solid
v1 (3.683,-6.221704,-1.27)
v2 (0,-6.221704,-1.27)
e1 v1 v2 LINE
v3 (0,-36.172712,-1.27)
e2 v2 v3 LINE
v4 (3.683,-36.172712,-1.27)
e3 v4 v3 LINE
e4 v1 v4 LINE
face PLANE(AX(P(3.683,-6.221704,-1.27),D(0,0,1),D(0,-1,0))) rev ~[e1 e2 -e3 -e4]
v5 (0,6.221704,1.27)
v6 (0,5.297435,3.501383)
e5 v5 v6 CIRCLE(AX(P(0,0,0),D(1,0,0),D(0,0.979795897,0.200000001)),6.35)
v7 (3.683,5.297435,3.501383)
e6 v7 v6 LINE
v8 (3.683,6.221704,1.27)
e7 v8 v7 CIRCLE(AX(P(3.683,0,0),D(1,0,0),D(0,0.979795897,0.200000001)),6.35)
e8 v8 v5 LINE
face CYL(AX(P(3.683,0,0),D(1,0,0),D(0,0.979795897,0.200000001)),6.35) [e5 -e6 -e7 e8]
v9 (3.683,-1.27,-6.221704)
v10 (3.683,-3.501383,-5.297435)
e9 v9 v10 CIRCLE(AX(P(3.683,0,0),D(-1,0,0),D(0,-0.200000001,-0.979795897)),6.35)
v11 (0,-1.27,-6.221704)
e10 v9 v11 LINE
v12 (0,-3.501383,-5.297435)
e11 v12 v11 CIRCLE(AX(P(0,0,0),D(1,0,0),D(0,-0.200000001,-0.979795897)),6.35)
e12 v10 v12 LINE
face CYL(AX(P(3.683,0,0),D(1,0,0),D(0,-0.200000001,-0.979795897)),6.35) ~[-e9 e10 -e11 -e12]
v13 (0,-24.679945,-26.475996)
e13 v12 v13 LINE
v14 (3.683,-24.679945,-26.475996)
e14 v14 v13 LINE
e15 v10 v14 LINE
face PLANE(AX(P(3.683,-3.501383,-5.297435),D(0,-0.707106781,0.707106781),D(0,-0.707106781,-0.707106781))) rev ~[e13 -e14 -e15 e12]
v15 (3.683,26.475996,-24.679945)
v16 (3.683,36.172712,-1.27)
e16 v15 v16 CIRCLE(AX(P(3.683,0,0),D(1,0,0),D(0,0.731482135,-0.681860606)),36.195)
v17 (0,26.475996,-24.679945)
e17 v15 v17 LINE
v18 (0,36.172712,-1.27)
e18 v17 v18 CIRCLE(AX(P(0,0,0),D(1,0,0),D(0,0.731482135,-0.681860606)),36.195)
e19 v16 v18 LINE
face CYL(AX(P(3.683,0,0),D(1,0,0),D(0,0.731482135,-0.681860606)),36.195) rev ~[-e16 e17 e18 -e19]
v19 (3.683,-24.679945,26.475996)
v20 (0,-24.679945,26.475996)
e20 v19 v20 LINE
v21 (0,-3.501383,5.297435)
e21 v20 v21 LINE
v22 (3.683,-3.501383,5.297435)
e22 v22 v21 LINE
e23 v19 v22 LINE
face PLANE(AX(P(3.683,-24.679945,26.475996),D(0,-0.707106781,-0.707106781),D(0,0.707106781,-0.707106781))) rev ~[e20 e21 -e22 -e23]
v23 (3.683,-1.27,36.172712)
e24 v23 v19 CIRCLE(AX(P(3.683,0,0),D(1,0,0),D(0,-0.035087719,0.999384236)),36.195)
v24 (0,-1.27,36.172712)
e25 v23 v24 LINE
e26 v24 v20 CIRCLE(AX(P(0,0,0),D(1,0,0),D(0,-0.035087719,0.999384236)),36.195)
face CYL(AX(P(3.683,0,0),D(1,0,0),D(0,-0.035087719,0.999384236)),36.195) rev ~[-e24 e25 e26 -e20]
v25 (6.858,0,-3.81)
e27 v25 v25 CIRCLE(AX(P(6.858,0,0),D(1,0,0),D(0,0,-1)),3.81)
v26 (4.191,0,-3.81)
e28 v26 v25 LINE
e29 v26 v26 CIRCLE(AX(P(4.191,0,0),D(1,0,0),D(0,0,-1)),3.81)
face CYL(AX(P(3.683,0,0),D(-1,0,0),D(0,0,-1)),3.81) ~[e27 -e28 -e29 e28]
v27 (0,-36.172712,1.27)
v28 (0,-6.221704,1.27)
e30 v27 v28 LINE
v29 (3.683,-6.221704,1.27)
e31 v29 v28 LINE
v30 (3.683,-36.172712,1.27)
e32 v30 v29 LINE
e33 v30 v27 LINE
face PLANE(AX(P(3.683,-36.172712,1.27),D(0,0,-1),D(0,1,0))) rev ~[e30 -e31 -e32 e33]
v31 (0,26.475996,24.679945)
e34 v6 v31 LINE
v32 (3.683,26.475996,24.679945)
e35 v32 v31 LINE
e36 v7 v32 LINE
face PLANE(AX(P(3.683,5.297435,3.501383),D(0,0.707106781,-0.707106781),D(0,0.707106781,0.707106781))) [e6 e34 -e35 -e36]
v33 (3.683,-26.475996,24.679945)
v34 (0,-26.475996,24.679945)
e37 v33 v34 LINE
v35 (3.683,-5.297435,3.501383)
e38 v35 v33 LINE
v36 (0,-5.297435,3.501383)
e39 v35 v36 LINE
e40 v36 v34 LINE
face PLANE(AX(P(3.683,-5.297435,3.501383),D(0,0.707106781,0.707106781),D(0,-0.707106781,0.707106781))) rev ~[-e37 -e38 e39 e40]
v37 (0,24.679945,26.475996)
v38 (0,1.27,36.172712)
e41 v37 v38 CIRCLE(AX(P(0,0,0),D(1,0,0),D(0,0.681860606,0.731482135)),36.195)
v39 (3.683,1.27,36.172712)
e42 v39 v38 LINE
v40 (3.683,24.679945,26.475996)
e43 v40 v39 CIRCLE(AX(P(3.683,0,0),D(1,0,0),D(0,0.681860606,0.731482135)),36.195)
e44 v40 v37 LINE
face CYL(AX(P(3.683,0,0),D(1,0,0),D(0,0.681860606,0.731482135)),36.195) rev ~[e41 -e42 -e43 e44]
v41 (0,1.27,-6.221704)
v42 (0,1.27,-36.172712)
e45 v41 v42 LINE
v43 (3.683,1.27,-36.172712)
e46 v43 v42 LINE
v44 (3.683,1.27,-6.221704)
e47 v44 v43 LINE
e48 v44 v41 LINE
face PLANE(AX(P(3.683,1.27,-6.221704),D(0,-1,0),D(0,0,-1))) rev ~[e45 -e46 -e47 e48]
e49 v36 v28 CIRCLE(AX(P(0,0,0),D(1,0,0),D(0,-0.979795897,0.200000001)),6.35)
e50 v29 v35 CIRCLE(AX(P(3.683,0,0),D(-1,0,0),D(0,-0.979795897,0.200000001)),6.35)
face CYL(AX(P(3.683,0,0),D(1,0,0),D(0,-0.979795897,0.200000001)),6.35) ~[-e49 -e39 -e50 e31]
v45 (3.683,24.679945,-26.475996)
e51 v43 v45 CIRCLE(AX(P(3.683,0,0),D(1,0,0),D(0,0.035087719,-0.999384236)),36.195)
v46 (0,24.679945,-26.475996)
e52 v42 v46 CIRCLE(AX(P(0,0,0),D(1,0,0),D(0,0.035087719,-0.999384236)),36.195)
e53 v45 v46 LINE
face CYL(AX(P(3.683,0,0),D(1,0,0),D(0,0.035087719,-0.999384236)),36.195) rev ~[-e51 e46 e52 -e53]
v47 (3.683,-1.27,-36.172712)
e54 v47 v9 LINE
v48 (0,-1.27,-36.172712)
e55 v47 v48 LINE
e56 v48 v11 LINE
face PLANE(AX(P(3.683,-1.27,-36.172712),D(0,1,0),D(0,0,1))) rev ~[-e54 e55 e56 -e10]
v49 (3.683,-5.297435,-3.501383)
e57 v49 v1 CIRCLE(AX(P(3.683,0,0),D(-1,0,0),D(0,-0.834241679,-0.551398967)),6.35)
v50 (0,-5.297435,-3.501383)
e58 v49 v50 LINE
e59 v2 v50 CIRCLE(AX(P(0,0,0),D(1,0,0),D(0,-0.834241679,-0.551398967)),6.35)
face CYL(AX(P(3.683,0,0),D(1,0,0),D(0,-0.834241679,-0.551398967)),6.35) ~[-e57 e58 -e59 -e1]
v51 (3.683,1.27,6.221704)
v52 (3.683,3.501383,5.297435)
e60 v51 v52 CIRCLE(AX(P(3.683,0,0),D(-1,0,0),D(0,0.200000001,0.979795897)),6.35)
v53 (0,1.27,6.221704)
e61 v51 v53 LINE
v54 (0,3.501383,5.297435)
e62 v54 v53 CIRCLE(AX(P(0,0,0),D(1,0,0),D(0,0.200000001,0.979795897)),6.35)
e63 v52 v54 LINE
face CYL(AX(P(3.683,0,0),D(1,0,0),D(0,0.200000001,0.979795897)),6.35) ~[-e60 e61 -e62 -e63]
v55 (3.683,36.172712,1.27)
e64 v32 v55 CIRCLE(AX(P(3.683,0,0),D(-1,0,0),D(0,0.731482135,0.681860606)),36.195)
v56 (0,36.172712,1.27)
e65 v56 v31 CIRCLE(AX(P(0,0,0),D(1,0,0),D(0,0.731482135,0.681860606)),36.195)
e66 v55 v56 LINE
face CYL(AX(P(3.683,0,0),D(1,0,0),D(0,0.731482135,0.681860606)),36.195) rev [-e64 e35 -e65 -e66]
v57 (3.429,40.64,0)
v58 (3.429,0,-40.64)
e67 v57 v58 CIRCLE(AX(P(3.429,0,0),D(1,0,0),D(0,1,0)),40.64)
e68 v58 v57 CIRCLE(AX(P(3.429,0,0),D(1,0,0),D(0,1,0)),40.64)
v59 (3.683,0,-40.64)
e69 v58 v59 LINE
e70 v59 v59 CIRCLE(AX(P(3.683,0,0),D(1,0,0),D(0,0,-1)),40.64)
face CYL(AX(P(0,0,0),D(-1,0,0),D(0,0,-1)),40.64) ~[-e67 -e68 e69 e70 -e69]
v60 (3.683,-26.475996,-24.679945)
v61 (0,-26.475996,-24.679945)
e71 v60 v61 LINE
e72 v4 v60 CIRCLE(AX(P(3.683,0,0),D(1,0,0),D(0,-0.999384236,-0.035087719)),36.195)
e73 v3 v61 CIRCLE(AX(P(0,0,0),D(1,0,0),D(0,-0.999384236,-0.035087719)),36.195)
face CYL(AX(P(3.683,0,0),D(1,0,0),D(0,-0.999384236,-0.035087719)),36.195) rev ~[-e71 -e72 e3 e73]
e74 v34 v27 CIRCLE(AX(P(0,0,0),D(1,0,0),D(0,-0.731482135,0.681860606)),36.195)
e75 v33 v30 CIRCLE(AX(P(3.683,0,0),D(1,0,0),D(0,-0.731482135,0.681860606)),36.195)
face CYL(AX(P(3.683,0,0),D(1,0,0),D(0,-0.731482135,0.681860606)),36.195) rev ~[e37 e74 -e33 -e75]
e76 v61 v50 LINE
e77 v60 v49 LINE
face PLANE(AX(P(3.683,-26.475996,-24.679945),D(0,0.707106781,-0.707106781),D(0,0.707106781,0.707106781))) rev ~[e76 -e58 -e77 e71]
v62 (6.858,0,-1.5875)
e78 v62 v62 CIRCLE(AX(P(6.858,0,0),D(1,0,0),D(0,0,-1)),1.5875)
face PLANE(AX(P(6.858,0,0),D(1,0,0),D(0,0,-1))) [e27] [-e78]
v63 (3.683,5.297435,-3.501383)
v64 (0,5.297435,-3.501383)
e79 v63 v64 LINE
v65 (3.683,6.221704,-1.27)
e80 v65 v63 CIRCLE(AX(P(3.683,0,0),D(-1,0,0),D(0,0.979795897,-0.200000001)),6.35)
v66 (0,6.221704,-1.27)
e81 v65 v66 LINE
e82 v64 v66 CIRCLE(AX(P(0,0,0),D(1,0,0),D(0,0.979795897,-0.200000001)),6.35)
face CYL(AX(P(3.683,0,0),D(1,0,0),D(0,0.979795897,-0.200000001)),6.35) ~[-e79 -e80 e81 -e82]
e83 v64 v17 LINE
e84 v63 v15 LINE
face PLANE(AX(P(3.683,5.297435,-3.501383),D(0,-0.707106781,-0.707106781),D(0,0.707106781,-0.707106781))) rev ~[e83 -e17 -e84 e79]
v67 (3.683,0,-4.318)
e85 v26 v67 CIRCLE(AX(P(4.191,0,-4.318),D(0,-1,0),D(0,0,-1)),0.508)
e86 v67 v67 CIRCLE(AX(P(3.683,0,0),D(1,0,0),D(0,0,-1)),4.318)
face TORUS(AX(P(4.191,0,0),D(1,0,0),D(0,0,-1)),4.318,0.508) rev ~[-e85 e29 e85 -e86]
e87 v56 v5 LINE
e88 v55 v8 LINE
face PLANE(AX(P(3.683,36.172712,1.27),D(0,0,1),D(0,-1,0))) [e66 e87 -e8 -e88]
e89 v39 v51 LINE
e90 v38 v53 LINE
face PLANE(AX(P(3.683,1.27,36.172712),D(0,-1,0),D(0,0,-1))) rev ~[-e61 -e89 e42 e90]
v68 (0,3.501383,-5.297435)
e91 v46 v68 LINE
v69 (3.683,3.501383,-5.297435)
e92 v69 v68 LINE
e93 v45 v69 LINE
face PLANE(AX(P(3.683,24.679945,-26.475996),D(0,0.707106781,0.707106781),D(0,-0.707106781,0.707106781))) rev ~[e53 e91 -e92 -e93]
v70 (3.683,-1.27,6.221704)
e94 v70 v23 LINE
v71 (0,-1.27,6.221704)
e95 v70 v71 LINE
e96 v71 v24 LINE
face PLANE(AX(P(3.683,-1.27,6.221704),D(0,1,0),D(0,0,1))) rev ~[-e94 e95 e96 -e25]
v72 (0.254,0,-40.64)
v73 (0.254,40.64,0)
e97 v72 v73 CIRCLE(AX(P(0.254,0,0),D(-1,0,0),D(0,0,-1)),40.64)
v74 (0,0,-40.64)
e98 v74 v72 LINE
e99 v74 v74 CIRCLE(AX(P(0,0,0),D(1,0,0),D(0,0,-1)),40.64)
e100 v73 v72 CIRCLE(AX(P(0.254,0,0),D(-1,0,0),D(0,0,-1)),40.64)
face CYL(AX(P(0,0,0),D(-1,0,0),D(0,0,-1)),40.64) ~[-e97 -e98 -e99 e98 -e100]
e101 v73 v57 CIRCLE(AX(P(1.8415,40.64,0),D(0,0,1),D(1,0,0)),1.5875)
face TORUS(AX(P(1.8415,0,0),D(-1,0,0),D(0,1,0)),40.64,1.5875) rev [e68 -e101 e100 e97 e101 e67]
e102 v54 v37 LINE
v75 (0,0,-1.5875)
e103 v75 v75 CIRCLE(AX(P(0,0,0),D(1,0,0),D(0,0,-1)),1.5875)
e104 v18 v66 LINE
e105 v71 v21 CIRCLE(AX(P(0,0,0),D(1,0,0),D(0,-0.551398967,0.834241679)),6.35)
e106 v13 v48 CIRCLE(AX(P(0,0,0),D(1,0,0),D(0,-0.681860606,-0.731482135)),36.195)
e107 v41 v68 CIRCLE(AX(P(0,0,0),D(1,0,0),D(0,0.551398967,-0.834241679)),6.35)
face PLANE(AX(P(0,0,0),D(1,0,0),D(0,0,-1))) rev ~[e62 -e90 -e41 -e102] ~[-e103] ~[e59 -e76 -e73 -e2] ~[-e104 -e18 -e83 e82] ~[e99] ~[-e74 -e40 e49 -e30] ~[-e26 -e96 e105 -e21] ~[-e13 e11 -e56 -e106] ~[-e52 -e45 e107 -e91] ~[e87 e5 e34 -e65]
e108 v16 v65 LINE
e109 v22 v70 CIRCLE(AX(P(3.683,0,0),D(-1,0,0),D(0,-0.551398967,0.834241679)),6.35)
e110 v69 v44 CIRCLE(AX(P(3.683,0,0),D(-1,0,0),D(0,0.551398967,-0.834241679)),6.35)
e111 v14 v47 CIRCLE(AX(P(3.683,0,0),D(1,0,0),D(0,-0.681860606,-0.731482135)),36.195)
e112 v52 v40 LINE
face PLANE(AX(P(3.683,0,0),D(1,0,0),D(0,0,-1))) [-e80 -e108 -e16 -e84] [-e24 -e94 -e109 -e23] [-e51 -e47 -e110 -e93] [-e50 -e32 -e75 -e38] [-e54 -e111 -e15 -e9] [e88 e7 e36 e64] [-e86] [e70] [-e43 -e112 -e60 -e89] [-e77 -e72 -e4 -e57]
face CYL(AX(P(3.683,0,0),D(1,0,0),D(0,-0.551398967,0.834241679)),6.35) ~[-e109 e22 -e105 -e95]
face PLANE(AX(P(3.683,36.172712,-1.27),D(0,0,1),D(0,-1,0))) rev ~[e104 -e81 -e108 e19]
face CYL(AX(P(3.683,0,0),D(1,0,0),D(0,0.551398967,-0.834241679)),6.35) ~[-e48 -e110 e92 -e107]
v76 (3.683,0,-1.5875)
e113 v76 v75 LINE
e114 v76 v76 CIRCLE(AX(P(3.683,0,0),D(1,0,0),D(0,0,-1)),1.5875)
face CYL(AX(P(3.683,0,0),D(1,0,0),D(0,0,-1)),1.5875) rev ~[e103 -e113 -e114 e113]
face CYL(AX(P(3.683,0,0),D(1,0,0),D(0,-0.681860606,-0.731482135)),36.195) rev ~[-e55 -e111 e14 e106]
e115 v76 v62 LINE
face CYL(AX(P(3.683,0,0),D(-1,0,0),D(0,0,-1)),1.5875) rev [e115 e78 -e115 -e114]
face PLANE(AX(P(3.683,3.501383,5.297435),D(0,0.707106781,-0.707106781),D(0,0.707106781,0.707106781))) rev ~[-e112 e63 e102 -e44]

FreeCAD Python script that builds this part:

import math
import FreeCAD as App
import Part
import Sketcher
Q = App.Units.Quantity


def edges_at(feature, points):
    """Names of the edges that pass closest to the given points."""
    edges = feature.Shape.Edges
    near = lambda p: min(range(len(edges)), key=lambda i: edges[i].distToShape(Part.Vertex(*p))[0])
    return sorted({f"Edge{near(p) + 1}" for p in points})

doc = App.newDocument("Part")
body = doc.addObject("PartDesign::Body", "Body")

# Sketch on YZ plane
sketch1 = body.newObject("Sketcher::SketchObject", "Sketch")
sketch1.AttachmentSupport = (doc.getObject("YZ_Plane"), [""])
sketch1.MapMode = "FlatFace"
sketch1.addGeometry(Part.Circle(App.Vector(0, 0, 0), App.Vector(0, 0, 1), 41), False)
sketch1.addConstraint([
    Sketcher.Constraint("Coincident", 0, 3, -1, 1),
    Sketcher.Constraint("Diameter", 0, Q("3.2 in")),
])
pad1 = body.newObject("PartDesign::Pad", "Pad")
pad1.Profile = sketch1
pad1.Length = Q("0.145 in")

# Sketch on XY plane
sketch2 = body.newObject("Sketcher::SketchObject", "Sketch001")
sketch2.AttachmentSupport = (doc.getObject("XY_Plane"), [""])
sketch2.MapMode = "FlatFace"
sketch2.addGeometry(Part.Circle(App.Vector(1.8, 40.6, 0), App.Vector(0, 0, 1), 1.6), False)
sketch2.addConstraint([
    Sketcher.Constraint("Diameter", 0, Q("0.125 in")),
    Sketcher.Constraint("DistanceY", -1, 1, 0, 3, Q("1.6 in")),
    Sketcher.Constraint("DistanceX", -1, 1, 0, 3, Q("0.0725 in")),
])
groove = body.newObject("PartDesign::Groove", "Groove")
groove.Profile = sketch2
groove.ReferenceAxis = (sketch2, ["H_Axis"])
groove.Angle = 360

# Sketch on YZ plane
sketch3 = body.newObject("Sketcher::SketchObject", "Sketch002")
sketch3.AttachmentSupport = (doc.getObject("YZ_Plane"), [""])
sketch3.MapMode = "FlatFace"
sketch3.AttachmentOffset = App.Placement(App.Vector(0, 0, 0.145 * 25.4), App.Rotation())
sketch3.addGeometry([
    Part.LineSegment(App.Vector(6.2, 1.3, 0), App.Vector(36.2, 1.3, 0)),  # 0
    Part.ArcOfCircle(Part.Circle(App.Vector(0, 0, 0), App.Vector(0, 0, 1), 36.2), math.radians(2), math.radians(43)),  # 1
    Part.LineSegment(App.Vector(26.5, 24.7, 0), App.Vector(5.3, 3.5, 0)),  # 2
    Part.ArcOfCircle(Part.Circle(App.Vector(0, 0, 0), App.Vector(0, 0, 1), 6.4), math.radians(12), math.radians(33)),  # 3
    Part.LineSegment(App.Vector(36.2, -1.3, 0), App.Vector(6.2, -1.3, 0)),  # 4
    Part.ArcOfCircle(Part.Circle(App.Vector(0, 0, 0), App.Vector(0, 0, 1), 6.4), math.radians(-33), math.radians(-12)),  # 5
    Part.LineSegment(App.Vector(5.3, -3.5, 0), App.Vector(26.5, -24.7, 0)),  # 6
    Part.ArcOfCircle(Part.Circle(App.Vector(0, 0, 0), App.Vector(0, 0, 1), 36.2), math.radians(-43), math.radians(-2)),  # 7
    Part.LineSegment(App.Vector(24.7, -26.5, 0), App.Vector(3.5, -5.3, 0)),  # 8
    Part.ArcOfCircle(Part.Circle(App.Vector(0, 0, 0), App.Vector(0, 0, 1), 6.4), math.radians(-78), math.radians(-57)),  # 9
    Part.LineSegment(App.Vector(1.3, -6.2, 0), App.Vector(1.3, -36.2, 0)),  # 10
    Part.ArcOfCircle(Part.Circle(App.Vector(0, 0, 0), App.Vector(0, 0, 1), 36.2), math.radians(-88), math.radians(-47)),  # 11
    Part.LineSegment(App.Vector(-1.3, -36.2, 0), App.Vector(-1.3, -6.2, 0)),  # 12
    Part.ArcOfCircle(Part.Circle(App.Vector(0, 0, 0), App.Vector(0, 0, 1), 6.4), math.radians(-123), math.radians(-102)),  # 13
    Part.LineSegment(App.Vector(-3.5, -5.3, 0), App.Vector(-24.7, -26.5, 0)),  # 14
    Part.ArcOfCircle(Part.Circle(App.Vector(0, 0, 0), App.Vector(0, 0, 1), 36.2), math.radians(-133), math.radians(-92)),  # 15
    Part.LineSegment(App.Vector(-26.5, -24.7, 0), App.Vector(-5.3, -3.5, 0)),  # 16
    Part.ArcOfCircle(Part.Circle(App.Vector(0, 0, 0), App.Vector(0, 0, 1), 6.4), math.radians(-168), math.radians(-147)),  # 17
    Part.LineSegment(App.Vector(-6.2, -1.3, 0), App.Vector(-36.2, -1.3, 0)),  # 18
    Part.ArcOfCircle(Part.Circle(App.Vector(0, 0, 0), App.Vector(0, 0, 1), 36.2), math.radians(-178), math.radians(-137)),  # 19
    Part.LineSegment(App.Vector(-36.2, 1.3, 0), App.Vector(-6.2, 1.3, 0)),  # 20
    Part.ArcOfCircle(Part.Circle(App.Vector(0, 0, 0), App.Vector(0, 0, 1), 6.4), math.radians(147), math.radians(168)),  # 21
    Part.LineSegment(App.Vector(-5.3, 3.5, 0), App.Vector(-26.5, 24.7, 0)),  # 22
    Part.ArcOfCircle(Part.Circle(App.Vector(0, 0, 0), App.Vector(0, 0, 1), 36.2), math.radians(137), math.radians(178)),  # 23
    Part.LineSegment(App.Vector(-24.7, 26.5, 0), App.Vector(-3.5, 5.3, 0)),  # 24
    Part.ArcOfCircle(Part.Circle(App.Vector(0, 0, 0), App.Vector(0, 0, 1), 6.4), math.radians(102), math.radians(123)),  # 25
    Part.LineSegment(App.Vector(-1.3, 6.2, 0), App.Vector(-1.3, 36.2, 0)),  # 26
    Part.ArcOfCircle(Part.Circle(App.Vector(0, 0, 0), App.Vector(0, 0, 1), 36.2), math.radians(92), math.radians(133)),  # 27
    Part.LineSegment(App.Vector(1.3, 36.2, 0), App.Vector(1.3, 6.2, 0)),  # 28
    Part.ArcOfCircle(Part.Circle(App.Vector(0, 0, 0), App.Vector(0, 0, 1), 6.4), math.radians(57), math.radians(78)),  # 29
    Part.LineSegment(App.Vector(3.5, 5.3, 0), App.Vector(24.7, 26.5, 0)),  # 30
    Part.ArcOfCircle(Part.Circle(App.Vector(0, 0, 0), App.Vector(0, 0, 1), 36.2), math.radians(47), math.radians(88)),  # 31
], False)
sketch3.addConstraint([
    Sketcher.Constraint("Coincident", 0, 2, 1, 1),
    Sketcher.Constraint("Coincident", 1, 2, 2, 1),
    Sketcher.Constraint("Coincident", 2, 2, 3, 2),
    Sketcher.Constraint("Coincident", 3, 1, 0, 1),
    Sketcher.Constraint("Coincident", 4, 2, 5, 2),
    Sketcher.Constraint("Coincident", 5, 1, 6, 1),
    Sketcher.Constraint("Coincident", 6, 2, 7, 1),
    Sketcher.Constraint("Coincident", 7, 2, 4, 1),
    Sketcher.Constraint("Coincident", 8, 2, 9, 2),
    Sketcher.Constraint("Coincident", 9, 1, 10, 1),
    Sketcher.Constraint("Coincident", 10, 2, 11, 1),
    Sketcher.Constraint("Coincident", 11, 2, 8, 1),
    Sketcher.Constraint("Coincident", 12, 2, 13, 2),
    Sketcher.Constraint("Coincident", 13, 1, 14, 1),
    Sketcher.Constraint("Coincident", 14, 2, 15, 1),
    Sketcher.Constraint("Coincident", 15, 2, 12, 1),
    Sketcher.Constraint("Coincident", 16, 2, 17, 2),
    Sketcher.Constraint("Coincident", 17, 1, 18, 1),
    Sketcher.Constraint("Coincident", 18, 2, 19, 1),
    Sketcher.Constraint("Coincident", 19, 2, 16, 1),
    Sketcher.Constraint("Coincident", 20, 2, 21, 2),
    Sketcher.Constraint("Coincident", 21, 1, 22, 1),
    Sketcher.Constraint("Coincident", 22, 2, 23, 1),
    Sketcher.Constraint("Coincident", 23, 2, 20, 1),
    Sketcher.Constraint("Coincident", 24, 2, 25, 2),
    Sketcher.Constraint("Coincident", 25, 1, 26, 1),
    Sketcher.Constraint("Coincident", 26, 2, 27, 1),
    Sketcher.Constraint("Coincident", 27, 2, 24, 1),
    Sketcher.Constraint("Coincident", 28, 2, 29, 2),
    Sketcher.Constraint("Coincident", 29, 1, 30, 1),
    Sketcher.Constraint("Coincident", 30, 2, 31, 1),
    Sketcher.Constraint("Coincident", 31, 2, 28, 1),
    Sketcher.Constraint("Horizontal", 0),
    Sketcher.Constraint("Horizontal", 4),
    Sketcher.Constraint("Vertical", 10),
    Sketcher.Constraint("Vertical", 12),
    Sketcher.Constraint("Horizontal", 18),
    Sketcher.Constraint("Horizontal", 20),
    Sketcher.Constraint("Vertical", 26),
    Sketcher.Constraint("Vertical", 28),
    Sketcher.Constraint("Coincident", 1, 3, -1, 1),
    Sketcher.Constraint("Coincident", 3, 3, -1, 1),
    Sketcher.Constraint("Coincident", 5, 3, -1, 1),
    Sketcher.Constraint("Coincident", 7, 3, -1, 1),
    Sketcher.Constraint("Coincident", 9, 3, -1, 1),
    Sketcher.Constraint("Coincident", 11, 3, -1, 1),
    Sketcher.Constraint("Coincident", 13, 3, -1, 1),
    Sketcher.Constraint("Coincident", 15, 3, -1, 1),
    Sketcher.Constraint("Coincident", 17, 3, -1, 1),
    Sketcher.Constraint("Coincident", 19, 3, -1, 1),
    Sketcher.Constraint("Coincident", 21, 3, -1, 1),
    Sketcher.Constraint("Coincident", 23, 3, -1, 1),
    Sketcher.Constraint("Coincident", 25, 3, -1, 1),
    Sketcher.Constraint("Coincident", 27, 3, -1, 1),
    Sketcher.Constraint("Coincident", 29, 3, -1, 1),
    Sketcher.Constraint("Coincident", 31, 3, -1, 1),
    Sketcher.Constraint("Equal", 3, 5),
    Sketcher.Constraint("Equal", 1, 7),
    Sketcher.Constraint("Equal", 5, 9),
    Sketcher.Constraint("Equal", 7, 11),
    Sketcher.Constraint("Equal", 9, 13),
    Sketcher.Constraint("Equal", 11, 15),
    Sketcher.Constraint("Equal", 13, 17),
    Sketcher.Constraint("Equal", 15, 19),
    Sketcher.Constraint("Equal", 17, 21),
    Sketcher.Constraint("Equal", 19, 23),
    Sketcher.Constraint("Equal", 21, 25),
    Sketcher.Constraint("Equal", 23, 27),
    Sketcher.Constraint("Equal", 25, 29),
    Sketcher.Constraint("Equal", 27, 31),
    Sketcher.Constraint("Perpendicular", 2, 6),
    Sketcher.Constraint("Parallel", 6, 8),
    Sketcher.Constraint("Perpendicular", 8, 14),
    Sketcher.Constraint("Parallel", 14, 16),
    Sketcher.Constraint("Perpendicular", 16, 22),
    Sketcher.Constraint("Parallel", 22, 24),
    Sketcher.Constraint("Perpendicular", 24, 30),
    Sketcher.Constraint("Horizontal", 9, 1, 12, 2),
    Sketcher.Constraint("Horizontal", 8, 2, 13, 1),
    Sketcher.Constraint("Horizontal", 11, 2, 14, 2),
    Sketcher.Constraint("Horizontal", 5, 1, 16, 2),
    Sketcher.Constraint("Horizontal", 7, 2, 17, 1),
    Sketcher.Constraint("Horizontal", 3, 1, 20, 2),
    Sketcher.Constraint("Horizontal", 2, 2, 21, 1),
    Sketcher.Constraint("Horizontal", 25, 1, 28, 2),
    Sketcher.Constraint("Horizontal", 24, 2, 29, 1),
    Sketcher.Constraint("Vertical", 3, 1, 4, 2),
    Sketcher.Constraint("Vertical", 2, 2, 5, 1),
    Sketcher.Constraint("Vertical", 13, 1, 24, 2),
    Sketcher.Constraint("Vertical", 15, 2, 25, 1),
    Sketcher.Constraint("Equal", 20, 10),
    Sketcher.Constraint("Equal", 6, 8),
    Sketcher.Constraint("Radius", 3, Q("0.25 in")),
    Sketcher.Constraint("Radius", 1, Q("1.425 in")),
    Sketcher.Constraint("DistanceY", 4, 2, 3, 1, Q("0.1 in")),
    Sketcher.Constraint("Distance", 2, 29.951008),
])
pocket1 = body.newObject("PartDesign::Pocket", "Pocket")
pocket1.Profile = sketch3
pocket1.Type = "ThroughAll"

# Sketch on YZ plane
sketch4 = body.newObject("Sketcher::SketchObject", "Sketch003")
sketch4.AttachmentSupport = (doc.getObject("YZ_Plane"), [""])
sketch4.MapMode = "FlatFace"
sketch4.AttachmentOffset = App.Placement(App.Vector(0, 0, 0.145 * 25.4), App.Rotation())
sketch4.addGeometry(Part.Circle(App.Vector(0, 0, 0), App.Vector(0, 0, 1), 1.6), False)
sketch4.addConstraint([
    Sketcher.Constraint("Coincident", 0, 3, -1, 1),
    Sketcher.Constraint("Diameter", 0, Q("0.125 in")),
])
pocket2 = body.newObject("PartDesign::Pocket", "Pocket001")
pocket2.Profile = sketch4
pocket2.Type = "ThroughAll"

# Sketch on YZ plane
sketch5 = body.newObject("Sketcher::SketchObject", "Sketch004")
sketch5.AttachmentSupport = (doc.getObject("YZ_Plane"), [""])
sketch5.MapMode = "FlatFace"
sketch5.AttachmentOffset = App.Placement(App.Vector(0, 0, 0.145 * 25.4), App.Rotation())
sketch5.addGeometry([
    Part.Circle(App.Vector(0, 0, 0), App.Vector(0, 0, 1), 3.8),
    Part.Circle(App.Vector(0, 0, 0), App.Vector(0, 0, 1), 1.6),
], False)
sketch5.addConstraint([
    Sketcher.Constraint("Coincident", 0, 3, -1, 1),
    Sketcher.Constraint("Coincident", 1, 3, -1, 1),
    Sketcher.Constraint("Diameter", 0, Q("0.3 in")),
    Sketcher.Constraint("Diameter", 1, Q("0.125 in")),
])
pad2 = body.newObject("PartDesign::Pad", "Pad001")
pad2.Profile = sketch5
pad2.Length = Q("0.125 in")
doc.recompute()

fillet = body.newObject("PartDesign::Fillet", "Fillet")
fillet.Base = (pad2, edges_at(pad2, [(3.683, 0, 3.81)]))
fillet.Radius = Q("0.02 in")

doc.recompute()
